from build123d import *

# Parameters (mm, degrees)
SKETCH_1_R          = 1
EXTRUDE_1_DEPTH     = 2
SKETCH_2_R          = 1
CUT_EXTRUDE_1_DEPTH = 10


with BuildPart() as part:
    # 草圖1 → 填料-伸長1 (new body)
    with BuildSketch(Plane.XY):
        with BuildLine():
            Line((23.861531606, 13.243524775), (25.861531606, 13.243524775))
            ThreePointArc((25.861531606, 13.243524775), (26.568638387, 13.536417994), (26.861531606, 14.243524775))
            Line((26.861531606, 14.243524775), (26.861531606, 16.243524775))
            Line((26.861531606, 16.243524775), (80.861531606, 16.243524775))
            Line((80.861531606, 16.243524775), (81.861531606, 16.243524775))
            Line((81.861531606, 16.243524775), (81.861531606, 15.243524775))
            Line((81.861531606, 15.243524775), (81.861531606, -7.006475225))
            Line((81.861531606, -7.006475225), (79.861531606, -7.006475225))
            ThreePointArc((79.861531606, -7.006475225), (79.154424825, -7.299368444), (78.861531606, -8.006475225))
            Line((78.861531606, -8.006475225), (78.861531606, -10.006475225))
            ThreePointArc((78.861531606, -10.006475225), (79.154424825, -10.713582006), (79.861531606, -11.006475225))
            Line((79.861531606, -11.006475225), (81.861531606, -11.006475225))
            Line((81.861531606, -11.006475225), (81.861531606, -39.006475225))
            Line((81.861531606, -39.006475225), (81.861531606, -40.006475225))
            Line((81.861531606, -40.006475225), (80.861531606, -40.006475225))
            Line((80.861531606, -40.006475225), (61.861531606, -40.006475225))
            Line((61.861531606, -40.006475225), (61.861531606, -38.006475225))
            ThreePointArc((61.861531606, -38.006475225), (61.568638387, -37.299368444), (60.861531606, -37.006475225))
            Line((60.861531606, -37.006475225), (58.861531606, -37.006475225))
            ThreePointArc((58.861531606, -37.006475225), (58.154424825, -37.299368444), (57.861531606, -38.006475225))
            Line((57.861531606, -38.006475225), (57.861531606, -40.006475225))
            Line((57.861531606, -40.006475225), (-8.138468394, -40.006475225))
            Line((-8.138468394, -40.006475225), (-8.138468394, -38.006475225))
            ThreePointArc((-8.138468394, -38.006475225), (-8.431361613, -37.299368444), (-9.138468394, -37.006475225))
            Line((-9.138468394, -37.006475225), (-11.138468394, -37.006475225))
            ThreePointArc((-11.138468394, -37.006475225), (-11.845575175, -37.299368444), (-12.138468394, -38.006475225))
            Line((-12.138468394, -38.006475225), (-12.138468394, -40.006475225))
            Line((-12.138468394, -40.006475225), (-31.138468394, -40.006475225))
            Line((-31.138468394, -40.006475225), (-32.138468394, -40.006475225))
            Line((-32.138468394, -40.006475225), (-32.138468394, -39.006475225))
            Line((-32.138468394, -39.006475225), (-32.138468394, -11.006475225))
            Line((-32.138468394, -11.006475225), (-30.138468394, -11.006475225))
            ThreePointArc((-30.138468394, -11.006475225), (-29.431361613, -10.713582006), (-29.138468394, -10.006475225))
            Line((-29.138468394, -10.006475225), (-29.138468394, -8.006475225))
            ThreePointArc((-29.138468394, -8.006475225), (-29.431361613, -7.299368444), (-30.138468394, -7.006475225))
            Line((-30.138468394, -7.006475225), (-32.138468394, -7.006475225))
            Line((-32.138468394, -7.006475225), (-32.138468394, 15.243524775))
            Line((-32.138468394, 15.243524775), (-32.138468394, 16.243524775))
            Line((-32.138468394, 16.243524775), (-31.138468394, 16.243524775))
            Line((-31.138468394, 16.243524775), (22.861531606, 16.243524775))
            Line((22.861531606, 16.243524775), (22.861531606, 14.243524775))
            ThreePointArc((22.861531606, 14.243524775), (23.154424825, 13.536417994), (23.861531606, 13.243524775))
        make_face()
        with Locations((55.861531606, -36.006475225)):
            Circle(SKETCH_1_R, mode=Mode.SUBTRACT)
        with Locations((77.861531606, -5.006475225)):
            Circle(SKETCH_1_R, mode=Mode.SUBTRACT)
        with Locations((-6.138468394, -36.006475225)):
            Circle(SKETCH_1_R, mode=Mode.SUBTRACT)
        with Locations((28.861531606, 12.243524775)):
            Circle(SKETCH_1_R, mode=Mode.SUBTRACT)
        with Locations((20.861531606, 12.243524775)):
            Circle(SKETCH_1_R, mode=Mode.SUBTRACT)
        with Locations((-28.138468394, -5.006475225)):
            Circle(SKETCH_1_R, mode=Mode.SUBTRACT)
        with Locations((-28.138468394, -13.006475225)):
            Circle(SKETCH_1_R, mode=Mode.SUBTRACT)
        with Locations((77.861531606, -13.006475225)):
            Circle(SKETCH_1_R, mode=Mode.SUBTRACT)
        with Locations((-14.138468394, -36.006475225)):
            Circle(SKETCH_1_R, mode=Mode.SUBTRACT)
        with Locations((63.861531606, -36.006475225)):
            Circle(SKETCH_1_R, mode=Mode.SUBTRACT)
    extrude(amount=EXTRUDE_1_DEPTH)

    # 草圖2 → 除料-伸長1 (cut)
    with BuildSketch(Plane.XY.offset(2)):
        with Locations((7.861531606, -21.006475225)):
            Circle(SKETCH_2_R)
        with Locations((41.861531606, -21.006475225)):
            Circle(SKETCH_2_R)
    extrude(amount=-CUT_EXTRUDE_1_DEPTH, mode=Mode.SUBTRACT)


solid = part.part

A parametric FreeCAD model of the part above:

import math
import FreeCAD as App
import Part
import Sketcher

doc = App.newDocument("Part")
body = doc.addObject("PartDesign::Body", "Body")

# Sketch on XY plane
sketch1 = body.newObject("Sketcher::SketchObject", "Sketch")
sketch1.AttachmentSupport = (doc.getObject("XY_Plane"), [""])
sketch1.MapMode = "FlatFace"
sketch1.addGeometry(Part.LineSegment(App.Vector(25.9, 13.2, 0), App.Vector(23.9, 13.2, 0)), False)
sketch1.addGeometry(Part.ArcOfCircle(Part.Circle(App.Vector(23.9, 14.2, 0), App.Vector(0, 0, 1), 1), math.radians(-180), math.radians(-90)), False)
sketch1.addGeometry(Part.LineSegment(App.Vector(22.9, 14.2, 0), App.Vector(22.9, 16.2, 0)), False)
sketch1.addGeometry(Part.LineSegment(App.Vector(22.9, 16.2, 0), App.Vector(-32.1, 16.2, 0)), False)
sketch1.addGeometry(Part.LineSegment(App.Vector(-32.1, 16.2, 0), App.Vector(-32.1, -7, 0)), False)
sketch1.addGeometry(Part.LineSegment(App.Vector(-32.1, -7, 0), App.Vector(-30.1, -7, 0)), False)
sketch1.addGeometry(Part.ArcOfCircle(Part.Circle(App.Vector(-30.1, -8, 0), App.Vector(0, 0, 1), 1), math.radians(0), math.radians(90)), False)
sketch1.addGeometry(Part.LineSegment(App.Vector(-29.1, -8, 0), App.Vector(-29.1, -10, 0)), False)
sketch1.addGeometry(Part.ArcOfCircle(Part.Circle(App.Vector(-30.1, -10, 0), App.Vector(0, 0, 1), 1), math.radians(-90), math.radians(0)), False)
sketch1.addGeometry(Part.LineSegment(App.Vector(-30.1, -11, 0), App.Vector(-32.1, -11, 0)), False)
sketch1.addGeometry(Part.LineSegment(App.Vector(-32.1, -11, 0), App.Vector(-32.1, -40, 0)), False)
sketch1.addGeometry(Part.LineSegment(App.Vector(-32.1, -40, 0), App.Vector(-12.1, -40, 0)), False)
sketch1.addGeometry(Part.LineSegment(App.Vector(-12.1, -40, 0), App.Vector(-12.1, -38, 0)), False)
sketch1.addGeometry(Part.ArcOfCircle(Part.Circle(App.Vector(-11.1, -38, 0), App.Vector(0, 0, 1), 1), math.radians(90), math.radians(180)), False)
sketch1.addGeometry(Part.LineSegment(App.Vector(-11.1, -37, 0), App.Vector(-9.1, -37, 0)), False)
sketch1.addGeometry(Part.ArcOfCircle(Part.Circle(App.Vector(-9.1, -38, 0), App.Vector(0, 0, 1), 1), math.radians(0), math.radians(90)), False)
sketch1.addGeometry(Part.LineSegment(App.Vector(-8.1, -38, 0), App.Vector(-8.1, -40, 0)), False)
sketch1.addGeometry(Part.LineSegment(App.Vector(-8.1, -40, 0), App.Vector(57.9, -40, 0)), False)
sketch1.addGeometry(Part.LineSegment(App.Vector(57.9, -40, 0), App.Vector(57.9, -38, 0)), False)
sketch1.addGeometry(Part.ArcOfCircle(Part.Circle(App.Vector(58.9, -38, 0), App.Vector(0, 0, 1), 1), math.radians(90), math.radians(180)), False)
sketch1.addGeometry(Part.LineSegment(App.Vector(58.9, -37, 0), App.Vector(60.9, -37, 0)), False)
sketch1.addGeometry(Part.ArcOfCircle(Part.Circle(App.Vector(60.9, -38, 0), App.Vector(0, 0, 1), 1), math.radians(0), math.radians(90)), False)
sketch1.addGeometry(Part.LineSegment(App.Vector(61.9, -38, 0), App.Vector(61.9, -40, 0)), False)
sketch1.addGeometry(Part.LineSegment(App.Vector(61.9, -40, 0), App.Vector(81.9, -40, 0)), False)
sketch1.addGeometry(Part.LineSegment(App.Vector(81.9, -40, 0), App.Vector(81.9, -11, 0)), False)
sketch1.addGeometry(Part.LineSegment(App.Vector(81.9, -11, 0), App.Vector(79.9, -11, 0)), False)
sketch1.addGeometry(Part.ArcOfCircle(Part.Circle(App.Vector(79.9, -10, 0), App.Vector(0, 0, 1), 1), math.radians(-180), math.radians(-90)), False)
sketch1.addGeometry(Part.LineSegment(App.Vector(78.9, -10, 0), App.Vector(78.9, -8, 0)), False)
sketch1.addGeometry(Part.ArcOfCircle(Part.Circle(App.Vector(79.9, -8, 0), App.Vector(0, 0, 1), 1), math.radians(90), math.radians(180)), False)
sketch1.addGeometry(Part.LineSegment(App.Vector(79.9, -7, 0), App.Vector(81.9, -7, 0)), False)
sketch1.addGeometry(Part.LineSegment(App.Vector(81.9, -7, 0), App.Vector(81.9, 16.2, 0)), False)
sketch1.addGeometry(Part.LineSegment(App.Vector(81.9, 16.2, 0), App.Vector(26.9, 16.2, 0)), False)
sketch1.addGeometry(Part.LineSegment(App.Vector(26.9, 16.2, 0), App.Vector(26.9, 14.2, 0)), False)
sketch1.addGeometry(Part.ArcOfCircle(Part.Circle(App.Vector(25.9, 14.2, 0), App.Vector(0, 0, 1), 1), math.radians(-90), math.radians(0)), False)
sketch1.addGeometry(Part.Circle(App.Vector(63.9, -36, 0), App.Vector(0, 0, 1), 1), False)
sketch1.addGeometry(Part.Circle(App.Vector(55.9, -36, 0), App.Vector(0, 0, 1), 1), False)
sketch1.addGeometry(Part.Circle(App.Vector(77.9, -13, 0), App.Vector(0, 0, 1), 1), False)
sketch1.addGeometry(Part.Circle(App.Vector(-6.1, -36, 0), App.Vector(0, 0, 1), 1), False)
sketch1.addGeometry(Part.Circle(App.Vector(-14.1, -36, 0), App.Vector(0, 0, 1), 1), False)
sketch1.addGeometry(Part.Circle(App.Vector(-28.1, -13, 0), App.Vector(0, 0, 1), 1), False)
sketch1.addGeometry(Part.Circle(App.Vector(77.9, -5, 0), App.Vector(0, 0, 1), 1), False)
sketch1.addGeometry(Part.Circle(App.Vector(28.9, 12.2, 0), App.Vector(0, 0, 1), 1), False)
sketch1.addGeometry(Part.Circle(App.Vector(-28.1, -5, 0), App.Vector(0, 0, 1), 1), False)
sketch1.addGeometry(Part.Circle(App.Vector(20.9, 12.2, 0), App.Vector(0, 0, 1), 1), False)
sketch1.addConstraint(Sketcher.Constraint("Tangent", 0, 2, 1, 2))
sketch1.addConstraint(Sketcher.Constraint("Tangent", 1, 1, 2, 1))
sketch1.addConstraint(Sketcher.Constraint("Coincident", 2, 2, 3, 1))
sketch1.addConstraint(Sketcher.Constraint("Coincident", 3, 2, 4, 1))
sketch1.addConstraint(Sketcher.Constraint("Coincident", 4, 2, 5, 1))
sketch1.addConstraint(Sketcher.Constraint("Tangent", 5, 2, 6, 2))
sketch1.addConstraint(Sketcher.Constraint("Tangent", 6, 1, 7, 1))
sketch1.addConstraint(Sketcher.Constraint("Tangent", 7, 2, 8, 2))
sketch1.addConstraint(Sketcher.Constraint("Tangent", 8, 1, 9, 1))
sketch1.addConstraint(Sketcher.Constraint("Coincident", 9, 2, 10, 1))
sketch1.addConstraint(Sketcher.Constraint("Coincident", 10, 2, 11, 1))
sketch1.addConstraint(Sketcher.Constraint("Coincident", 11, 2, 12, 1))
sketch1.addConstraint(Sketcher.Constraint("Tangent", 12, 2, 13, 2))
sketch1.addConstraint(Sketcher.Constraint("Tangent", 13, 1, 14, 1))
sketch1.addConstraint(Sketcher.Constraint("Tangent", 14, 2, 15, 2))
sketch1.addConstraint(Sketcher.Constraint("Tangent", 15, 1, 16, 1))
sketch1.addConstraint(Sketcher.Constraint("Coincident", 16, 2, 17, 1))
sketch1.addConstraint(Sketcher.Constraint("Coincident", 17, 2, 18, 1))
sketch1.addConstraint(Sketcher.Constraint("Tangent", 18, 2, 19, 2))
sketch1.addConstraint(Sketcher.Constraint("Tangent", 19, 1, 20, 1))
sketch1.addConstraint(Sketcher.Constraint("Tangent", 20, 2, 21, 2))
sketch1.addConstraint(Sketcher.Constraint("Tangent", 21, 1, 22, 1))
sketch1.addConstraint(Sketcher.Constraint("Coincident", 22, 2, 23, 1))
sketch1.addConstraint(Sketcher.Constraint("Coincident", 23, 2, 24, 1))
sketch1.addConstraint(Sketcher.Constraint("Coincident", 24, 2, 25, 1))
sketch1.addConstraint(Sketcher.Constraint("Tangent", 25, 2, 26, 2))
sketch1.addConstraint(Sketcher.Constraint("Tangent", 26, 1, 27, 1))
sketch1.addConstraint(Sketcher.Constraint("Tangent", 27, 2, 28, 2))
sketch1.addConstraint(Sketcher.Constraint("Tangent", 28, 1, 29, 1))
sketch1.addConstraint(Sketcher.Constraint("Coincident", 29, 2, 30, 1))
sketch1.addConstraint(Sketcher.Constraint("Coincident", 30, 2, 31, 1))
sketch1.addConstraint(Sketcher.Constraint("Coincident", 31, 2, 32, 1))
sketch1.addConstraint(Sketcher.Constraint("Tangent", 32, 2, 33, 2))
sketch1.addConstraint(Sketcher.Constraint("Tangent", 33, 1, 0, 1))
sketch1.addConstraint(Sketcher.Constraint("Horizontal", 0))
sketch1.addConstraint(Sketcher.Constraint("Vertical", 2))
sketch1.addConstraint(Sketcher.Constraint("Horizontal", 3))
sketch1.addConstraint(Sketcher.Constraint("Vertical", 4))
sketch1.addConstraint(Sketcher.Constraint("Horizontal", 5))
sketch1.addConstraint(Sketcher.Constraint("Vertical", 7))
sketch1.addConstraint(Sketcher.Constraint("Horizontal", 9))
sketch1.addConstraint(Sketcher.Constraint("Vertical", 10))
sketch1.addConstraint(Sketcher.Constraint("Horizontal", 11))
sketch1.addConstraint(Sketcher.Constraint("Vertical", 12))
sketch1.addConstraint(Sketcher.Constraint("Horizontal", 14))
sketch1.addConstraint(Sketcher.Constraint("Vertical", 16))
sketch1.addConstraint(Sketcher.Constraint("Horizontal", 17))
sketch1.addConstraint(Sketcher.Constraint("Vertical", 18))
sketch1.addConstraint(Sketcher.Constraint("Horizontal", 20))
sketch1.addConstraint(Sketcher.Constraint("Vertical", 22))
sketch1.addConstraint(Sketcher.Constraint("Horizontal", 23))
sketch1.addConstraint(Sketcher.Constraint("Vertical", 24))
sketch1.addConstraint(Sketcher.Constraint("Horizontal", 25))
sketch1.addConstraint(Sketcher.Constraint("Vertical", 27))
sketch1.addConstraint(Sketcher.Constraint("Horizontal", 29))
sketch1.addConstraint(Sketcher.Constraint("Vertical", 30))
sketch1.addConstraint(Sketcher.Constraint("Horizontal", 31))
sketch1.addConstraint(Sketcher.Constraint("Vertical", 32))
sketch1.addConstraint(Sketcher.Constraint("Equal", 1, 6))
sketch1.addConstraint(Sketcher.Constraint("Equal", 6, 8))
sketch1.addConstraint(Sketcher.Constraint("Equal", 8, 13))
sketch1.addConstraint(Sketcher.Constraint("Equal", 13, 15))
sketch1.addConstraint(Sketcher.Constraint("Equal", 15, 19))
sketch1.addConstraint(Sketcher.Constraint("Equal", 19, 21))
sketch1.addConstraint(Sketcher.Constraint("Equal", 21, 26))
sketch1.addConstraint(Sketcher.Constraint("Equal", 26, 28))
sketch1.addConstraint(Sketcher.Constraint("Equal", 28, 33))
sketch1.addConstraint(Sketcher.Constraint("Equal", 33, 34))
sketch1.addConstraint(Sketcher.Constraint("Equal", 34, 35))
sketch1.addConstraint(Sketcher.Constraint("Equal", 35, 36))
sketch1.addConstraint(Sketcher.Constraint("Equal", 36, 37))
sketch1.addConstraint(Sketcher.Constraint("Equal", 37, 38))
sketch1.addConstraint(Sketcher.Constraint("Equal", 38, 39))
sketch1.addConstraint(Sketcher.Constraint("Equal", 39, 40))
sketch1.addConstraint(Sketcher.Constraint("Equal", 40, 41))
sketch1.addConstraint(Sketcher.Constraint("Equal", 41, 42))
sketch1.addConstraint(Sketcher.Constraint("Equal", 42, 43))
sketch1.addConstraint(Sketcher.Constraint("Horizontal", 15, 3, 19, 3))
sketch1.addConstraint(Sketcher.Constraint("Horizontal", 8, 3, 26, 3))
sketch1.addConstraint(Sketcher.Constraint("Horizontal", 6, 3, 28, 3))
sketch1.addConstraint(Sketcher.Constraint("Horizontal", 34, 3, 35, 3))
sketch1.addConstraint(Sketcher.Constraint("Horizontal", 35, 3, 37, 3))
sketch1.addConstraint(Sketcher.Constraint("Horizontal", 37, 3, 38, 3))
sketch1.addConstraint(Sketcher.Constraint("Horizontal", 36, 3, 39, 3))
sketch1.addConstraint(Sketcher.Constraint("Horizontal", 40, 3, 42, 3))
sketch1.addConstraint(Sketcher.Constraint("Horizontal", 41, 3, 43, 3))
sketch1.addConstraint(Sketcher.Constraint("Horizontal", 11, 2, 16, 2))
sketch1.addConstraint(Sketcher.Constraint("Horizontal", 17, 2, 22, 2))
sketch1.addConstraint(Sketcher.Constraint("Horizontal", 3, 2, 30, 2))
sketch1.addConstraint(Sketcher.Constraint("Vertical", 36, 3, 40, 3))
sketch1.addConstraint(Sketcher.Constraint("Vertical", 39, 3, 42, 3))
sketch1.addConstraint(Sketcher.Constraint("Vertical", 4, 2, 9, 2))
sketch1.addConstraint(Sketcher.Constraint("Vertical", 24, 2, 29, 2))
sketch1.addConstraint(Sketcher.Constraint("Equal", 0, 5))
sketch1.addConstraint(Sketcher.Constraint("Equal", 9, 14))
sketch1.addConstraint(Sketcher.Constraint("Equal", 14, 20))
sketch1.addConstraint(Sketcher.Constraint("Equal", 11, 23))
sketch1.addConstraint(Sketcher.Constraint("Equal", 20, 25))
sketch1.addConstraint(Sketcher.Constraint("Equal", 3, 31))
sketch1.addConstraint(Sketcher.Constraint("Equal", 29, 2))
sketch1.addConstraint(Sketcher.Constraint("Equal", 2, 7))
sketch1.addConstraint(Sketcher.Constraint("Equal", 7, 12))
sketch1.addConstraint(Sketcher.Constraint("Diameter", 34, 2.0))
sketch1.addConstraint(Sketcher.Constraint("DistanceX", 0, 2, 0, 1, 2.0))
sketch1.addConstraint(Sketcher.Constraint("DistanceX", 3, 2, 3, 1, 55.0))
sketch1.addConstraint(Sketcher.Constraint("DistanceX", 11, 1, 11, 2, 20.0))
sketch1.addConstraint(Sketcher.Constraint("DistanceY", 10, 2, 10, 1, 29.0))
sketch1.addConstraint(Sketcher.Constraint("DistanceX", 21, 3, 34, 3, 3.0))
sketch1.addConstraint(Sketcher.Constraint("DistanceY", 21, 3, 34, 3, 2.0))
sketch1.addConstraint(Sketcher.Constraint("DistanceX", 35, 3, 19, 3, 3.0))
sketch1.addConstraint(Sketcher.Constraint("DistanceX", 36, 3, 26, 3, 2.0))
sketch1.addConstraint(Sketcher.Constraint("DistanceY", 36, 3, 26, 3, 3.0))
sketch1.addConstraint(Sketcher.Constraint("DistanceX", 15, 3, 37, 3, 3.0))
sketch1.addConstraint(Sketcher.Constraint("DistanceX", 38, 3, 13, 3, 3.0))
sketch1.addConstraint(Sketcher.Constraint("DistanceX", 8, 3, 39, 3, 2.0))
sketch1.addConstraint(Sketcher.Constraint("DistanceY", 28, 3, 40, 3, 3.0))
sketch1.addConstraint(Sketcher.Constraint("DistanceX", 33, 3, 41, 3, 3.0))
sketch1.addConstraint(Sketcher.Constraint("DistanceY", 41, 3, 33, 3, 2.0))
sketch1.addConstraint(Sketcher.Constraint("DistanceX", 43, 3, 1, 3, 3.0))
sketch1.addConstraint(Sketcher.Constraint("DistanceY", 4, 2, 4, 1, 23.25))
sketch1.addConstraint(Sketcher.Constraint("DistanceX", -1, 1, 1, 3, 23.861532))
sketch1.addConstraint(Sketcher.Constraint("DistanceY", -1, 1, 1, 3, 14.243525))
pad1 = body.newObject("PartDesign::Pad", "Pad")
pad1.Profile = sketch1
pad1.Length = 2

# Sketch on XY plane
sketch2 = body.newObject("Sketcher::SketchObject", "Sketch001")
sketch2.AttachmentSupport = (doc.getObject("XY_Plane"), [""])
sketch2.MapMode = "FlatFace"
sketch2.AttachmentOffset = App.Placement(App.Vector(0, 0, 2), App.Rotation())
sketch2.addGeometry(Part.Circle(App.Vector(7.9, -21, 0), App.Vector(0, 0, 1), 1), False)
sketch2.addGeometry(Part.Circle(App.Vector(41.9, -21, 0), App.Vector(0, 0, 1), 1), False)
sketch2.addConstraint(Sketcher.Constraint("Equal", 0, 1))
sketch2.addConstraint(Sketcher.Constraint("Horizontal", 0, 3, 1, 3))
sketch2.addConstraint(Sketcher.Constraint("Diameter", 0, 2.0))
sketch2.addConstraint(Sketcher.Constraint("DistanceX", 0, 3, 1, 3, 34.0))
sketch2.addConstraint(Sketcher.Constraint("DistanceX", -1, 1, 0, 3, 7.861532))
sketch2.addConstraint(Sketcher.Constraint("DistanceY", 0, 3, -1, 1, 21.006475))
pocket1 = body.newObject("PartDesign::Pocket", "Pocket")
pocket1.Profile = sketch2
pocket1.Length = 10

doc.recompute()
